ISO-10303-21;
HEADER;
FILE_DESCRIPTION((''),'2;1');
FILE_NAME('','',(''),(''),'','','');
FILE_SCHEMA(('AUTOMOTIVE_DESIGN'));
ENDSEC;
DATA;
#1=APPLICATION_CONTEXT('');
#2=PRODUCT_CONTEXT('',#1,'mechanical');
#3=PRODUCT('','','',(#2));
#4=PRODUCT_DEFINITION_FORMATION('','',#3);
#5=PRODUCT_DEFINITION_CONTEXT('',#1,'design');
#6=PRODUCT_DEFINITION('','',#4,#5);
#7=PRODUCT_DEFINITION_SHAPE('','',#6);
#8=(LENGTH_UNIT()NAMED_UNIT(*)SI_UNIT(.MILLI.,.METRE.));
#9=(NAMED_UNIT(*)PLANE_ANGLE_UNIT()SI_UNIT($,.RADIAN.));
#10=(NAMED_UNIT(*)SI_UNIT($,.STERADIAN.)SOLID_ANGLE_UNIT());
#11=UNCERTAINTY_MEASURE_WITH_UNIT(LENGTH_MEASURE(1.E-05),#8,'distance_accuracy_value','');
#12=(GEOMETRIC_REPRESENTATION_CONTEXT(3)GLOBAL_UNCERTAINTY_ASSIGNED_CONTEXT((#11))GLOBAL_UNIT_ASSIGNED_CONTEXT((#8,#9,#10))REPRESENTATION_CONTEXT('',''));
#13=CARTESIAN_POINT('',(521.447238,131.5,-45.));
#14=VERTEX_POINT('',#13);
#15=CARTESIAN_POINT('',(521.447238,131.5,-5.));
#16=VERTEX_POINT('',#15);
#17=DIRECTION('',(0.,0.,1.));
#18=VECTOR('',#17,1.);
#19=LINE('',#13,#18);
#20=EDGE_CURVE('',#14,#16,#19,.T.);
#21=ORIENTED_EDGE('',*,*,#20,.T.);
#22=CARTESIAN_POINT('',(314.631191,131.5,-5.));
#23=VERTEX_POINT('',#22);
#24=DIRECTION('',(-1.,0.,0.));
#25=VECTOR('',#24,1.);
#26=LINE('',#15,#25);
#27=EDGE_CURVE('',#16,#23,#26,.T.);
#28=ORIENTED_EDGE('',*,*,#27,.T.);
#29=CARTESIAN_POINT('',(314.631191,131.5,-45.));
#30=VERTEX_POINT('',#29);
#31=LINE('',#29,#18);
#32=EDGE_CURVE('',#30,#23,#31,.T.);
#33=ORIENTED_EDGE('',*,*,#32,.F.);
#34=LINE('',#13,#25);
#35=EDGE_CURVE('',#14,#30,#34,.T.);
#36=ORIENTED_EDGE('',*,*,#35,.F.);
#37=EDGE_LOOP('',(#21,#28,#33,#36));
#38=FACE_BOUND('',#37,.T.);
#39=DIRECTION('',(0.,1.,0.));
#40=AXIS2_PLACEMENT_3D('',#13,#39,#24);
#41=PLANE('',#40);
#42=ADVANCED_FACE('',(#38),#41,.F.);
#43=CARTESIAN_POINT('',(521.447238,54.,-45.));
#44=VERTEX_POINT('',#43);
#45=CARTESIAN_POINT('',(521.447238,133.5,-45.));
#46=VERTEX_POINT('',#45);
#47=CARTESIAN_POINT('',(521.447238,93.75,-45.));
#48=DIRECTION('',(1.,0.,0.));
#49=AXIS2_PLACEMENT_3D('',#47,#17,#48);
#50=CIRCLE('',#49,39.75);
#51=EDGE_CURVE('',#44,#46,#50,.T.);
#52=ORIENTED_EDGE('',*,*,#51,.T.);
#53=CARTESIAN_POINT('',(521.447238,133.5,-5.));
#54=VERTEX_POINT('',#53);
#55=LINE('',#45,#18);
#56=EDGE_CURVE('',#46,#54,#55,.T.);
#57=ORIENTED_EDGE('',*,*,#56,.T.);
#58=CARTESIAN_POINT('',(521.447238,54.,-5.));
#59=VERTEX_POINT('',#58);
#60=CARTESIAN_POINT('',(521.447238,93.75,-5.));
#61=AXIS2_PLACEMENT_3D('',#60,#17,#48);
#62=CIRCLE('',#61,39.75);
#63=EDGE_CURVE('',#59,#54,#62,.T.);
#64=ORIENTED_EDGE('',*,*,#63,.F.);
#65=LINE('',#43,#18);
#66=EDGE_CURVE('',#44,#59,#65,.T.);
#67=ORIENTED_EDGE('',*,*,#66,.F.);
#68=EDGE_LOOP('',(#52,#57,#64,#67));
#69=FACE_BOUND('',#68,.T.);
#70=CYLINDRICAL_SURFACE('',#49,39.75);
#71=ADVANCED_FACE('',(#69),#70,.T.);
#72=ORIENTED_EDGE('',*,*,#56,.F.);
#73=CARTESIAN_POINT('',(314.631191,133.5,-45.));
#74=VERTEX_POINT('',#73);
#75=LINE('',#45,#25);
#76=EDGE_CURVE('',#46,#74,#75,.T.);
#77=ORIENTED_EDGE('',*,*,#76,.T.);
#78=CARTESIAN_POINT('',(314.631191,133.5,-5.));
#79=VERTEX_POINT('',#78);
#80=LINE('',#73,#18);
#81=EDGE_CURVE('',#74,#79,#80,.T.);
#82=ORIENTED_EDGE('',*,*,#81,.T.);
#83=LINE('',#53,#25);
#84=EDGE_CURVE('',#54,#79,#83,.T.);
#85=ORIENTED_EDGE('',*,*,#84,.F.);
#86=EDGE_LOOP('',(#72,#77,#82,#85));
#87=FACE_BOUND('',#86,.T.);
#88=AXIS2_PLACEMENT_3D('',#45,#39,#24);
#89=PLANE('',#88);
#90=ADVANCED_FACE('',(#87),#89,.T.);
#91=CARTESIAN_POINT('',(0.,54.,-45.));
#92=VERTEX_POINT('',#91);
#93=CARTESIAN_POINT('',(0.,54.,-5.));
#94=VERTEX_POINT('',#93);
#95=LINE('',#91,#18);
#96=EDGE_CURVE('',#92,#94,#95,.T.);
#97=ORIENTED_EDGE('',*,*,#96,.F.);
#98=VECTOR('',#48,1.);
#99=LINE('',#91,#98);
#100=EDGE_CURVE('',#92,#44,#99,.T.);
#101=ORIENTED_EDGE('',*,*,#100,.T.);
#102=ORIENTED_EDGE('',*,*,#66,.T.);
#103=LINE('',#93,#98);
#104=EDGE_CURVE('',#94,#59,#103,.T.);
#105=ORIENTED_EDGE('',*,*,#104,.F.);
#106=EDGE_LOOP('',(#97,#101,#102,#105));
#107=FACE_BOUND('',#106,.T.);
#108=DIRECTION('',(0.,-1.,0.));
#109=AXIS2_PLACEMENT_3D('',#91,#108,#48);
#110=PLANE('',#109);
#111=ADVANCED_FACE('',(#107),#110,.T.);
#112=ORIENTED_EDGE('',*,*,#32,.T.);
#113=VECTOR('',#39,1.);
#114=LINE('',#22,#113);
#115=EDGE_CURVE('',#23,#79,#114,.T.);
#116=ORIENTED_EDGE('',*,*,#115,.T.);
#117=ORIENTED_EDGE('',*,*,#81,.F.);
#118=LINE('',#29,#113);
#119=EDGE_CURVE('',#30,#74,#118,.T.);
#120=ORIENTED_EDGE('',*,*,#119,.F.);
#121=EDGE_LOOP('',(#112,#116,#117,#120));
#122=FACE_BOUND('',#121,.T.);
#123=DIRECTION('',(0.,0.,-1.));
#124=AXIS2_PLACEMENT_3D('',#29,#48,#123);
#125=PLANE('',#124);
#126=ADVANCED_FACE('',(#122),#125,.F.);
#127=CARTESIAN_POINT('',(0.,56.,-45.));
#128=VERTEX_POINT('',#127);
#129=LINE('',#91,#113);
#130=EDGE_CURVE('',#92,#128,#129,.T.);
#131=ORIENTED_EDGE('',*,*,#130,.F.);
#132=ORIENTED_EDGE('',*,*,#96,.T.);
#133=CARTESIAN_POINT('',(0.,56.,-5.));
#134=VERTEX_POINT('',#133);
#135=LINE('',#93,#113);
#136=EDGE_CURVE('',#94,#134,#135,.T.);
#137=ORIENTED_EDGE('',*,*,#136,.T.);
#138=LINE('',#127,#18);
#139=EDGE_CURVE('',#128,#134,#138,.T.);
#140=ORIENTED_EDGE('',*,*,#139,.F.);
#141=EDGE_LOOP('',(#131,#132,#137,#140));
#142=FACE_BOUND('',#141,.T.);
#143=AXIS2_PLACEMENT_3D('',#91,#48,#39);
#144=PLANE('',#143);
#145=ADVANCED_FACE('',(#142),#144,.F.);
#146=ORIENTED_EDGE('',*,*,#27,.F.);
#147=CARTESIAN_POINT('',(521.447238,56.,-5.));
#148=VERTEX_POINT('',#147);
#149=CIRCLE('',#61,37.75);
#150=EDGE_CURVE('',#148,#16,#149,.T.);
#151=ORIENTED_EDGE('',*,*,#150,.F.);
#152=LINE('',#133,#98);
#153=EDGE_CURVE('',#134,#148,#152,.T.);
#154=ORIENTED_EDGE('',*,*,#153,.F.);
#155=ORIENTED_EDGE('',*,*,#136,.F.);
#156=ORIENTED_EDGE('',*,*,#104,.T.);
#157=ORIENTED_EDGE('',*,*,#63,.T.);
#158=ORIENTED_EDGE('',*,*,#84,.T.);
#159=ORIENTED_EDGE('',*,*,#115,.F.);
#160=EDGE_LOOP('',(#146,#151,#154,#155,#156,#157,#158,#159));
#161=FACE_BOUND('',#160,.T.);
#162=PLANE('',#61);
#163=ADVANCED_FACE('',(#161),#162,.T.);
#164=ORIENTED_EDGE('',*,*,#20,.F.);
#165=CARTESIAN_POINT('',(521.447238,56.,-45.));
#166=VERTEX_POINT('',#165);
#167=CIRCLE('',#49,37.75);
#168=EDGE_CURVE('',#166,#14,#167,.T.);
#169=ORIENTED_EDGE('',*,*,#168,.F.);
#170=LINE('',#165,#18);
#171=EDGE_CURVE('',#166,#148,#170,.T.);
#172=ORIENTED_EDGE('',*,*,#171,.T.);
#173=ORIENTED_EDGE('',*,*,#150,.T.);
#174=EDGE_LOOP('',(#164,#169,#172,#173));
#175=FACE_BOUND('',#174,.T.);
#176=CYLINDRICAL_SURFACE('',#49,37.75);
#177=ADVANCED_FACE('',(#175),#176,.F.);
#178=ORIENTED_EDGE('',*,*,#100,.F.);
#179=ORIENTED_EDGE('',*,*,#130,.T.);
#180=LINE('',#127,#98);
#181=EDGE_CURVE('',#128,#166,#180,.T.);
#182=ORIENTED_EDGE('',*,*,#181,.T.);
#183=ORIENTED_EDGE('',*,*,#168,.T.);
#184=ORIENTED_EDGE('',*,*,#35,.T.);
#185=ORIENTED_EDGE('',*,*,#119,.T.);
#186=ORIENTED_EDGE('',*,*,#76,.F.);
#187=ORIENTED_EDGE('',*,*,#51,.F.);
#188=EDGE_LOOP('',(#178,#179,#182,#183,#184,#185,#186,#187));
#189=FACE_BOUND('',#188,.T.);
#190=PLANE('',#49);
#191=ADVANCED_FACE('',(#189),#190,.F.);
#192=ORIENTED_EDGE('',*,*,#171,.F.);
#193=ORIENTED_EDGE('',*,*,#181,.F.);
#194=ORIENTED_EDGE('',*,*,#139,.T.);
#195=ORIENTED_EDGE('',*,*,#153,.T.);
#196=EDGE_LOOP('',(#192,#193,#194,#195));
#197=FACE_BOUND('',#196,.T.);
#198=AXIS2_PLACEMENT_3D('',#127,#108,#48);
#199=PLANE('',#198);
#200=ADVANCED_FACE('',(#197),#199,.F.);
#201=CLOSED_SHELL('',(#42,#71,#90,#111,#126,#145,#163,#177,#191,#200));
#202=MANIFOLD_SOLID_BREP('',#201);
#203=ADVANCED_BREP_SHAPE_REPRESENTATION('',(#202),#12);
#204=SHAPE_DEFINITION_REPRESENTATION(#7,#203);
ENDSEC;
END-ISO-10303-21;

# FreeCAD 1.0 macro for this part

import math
import FreeCAD as App
import Part
import Sketcher

V = App.Vector

doc = App.newDocument("Part")
body = doc.addObject("PartDesign::Body", "Body")

# Sketch on XY plane
sketch1 = doc.addObject("Sketcher::SketchObject", "Sketch")
body.addObject(sketch1)
sketch1.AttachmentSupport = (doc.XY_Plane, [""])
sketch1.MapMode = "FlatFace"
sketch1.AttachmentOffset = App.Placement(V(0, 0, -5), App.Rotation())
sketch1.addGeometry([
    Part.LineSegment(V(0, 54, 0), V(521.447238, 54, 0)),  # 0
    Part.ArcOfCircle(Part.Circle(V(521.447238, 93.75, 0), V(0, 0, 1), 39.75), math.radians(-90), math.radians(90)),  # 1
    Part.LineSegment(V(521.447238, 133.5, 0), V(314.631191, 133.5, 0)),  # 2
    Part.LineSegment(V(314.631191, 133.5, 0), V(314.631191, 131.5, 0)),  # 3
    Part.LineSegment(V(314.631191, 131.5, 0), V(521.447238, 131.5, 0)),  # 4
    Part.ArcOfCircle(Part.Circle(V(521.447238, 93.75, 0), V(0, 0, 1), 37.75), math.radians(-90), math.radians(90)),  # 5
    Part.LineSegment(V(521.447238, 56, 0), V(0, 56, 0)),  # 6
    Part.LineSegment(V(0, 56, 0), V(0, 54, 0)),  # 7
], False)
sketch1.addConstraint([
    Sketcher.Constraint("Tangent", 0, 2, 1, 1),
    Sketcher.Constraint("Tangent", 1, 2, 2, 1),
    Sketcher.Constraint("Coincident", 2, 2, 3, 1),
    Sketcher.Constraint("Coincident", 3, 2, 4, 1),
    Sketcher.Constraint("Tangent", 4, 2, 5, 2),
    Sketcher.Constraint("Tangent", 5, 1, 6, 1),
    Sketcher.Constraint("Coincident", 6, 2, 7, 1),
    Sketcher.Constraint("Coincident", 7, 2, 0, 1),
    Sketcher.Constraint("Horizontal", 0),
    Sketcher.Constraint("Horizontal", 2),
    Sketcher.Constraint("Vertical", 3),
    Sketcher.Constraint("Horizontal", 4),
    Sketcher.Constraint("Horizontal", 6),
    Sketcher.Constraint("Vertical", 7),
    Sketcher.Constraint("Coincident", 5, 3, 1, 3),
    Sketcher.Constraint("PointOnObject", 6, 2, -2),
    Sketcher.Constraint("DistanceY", 3, 2, 3, 1, 2.0),
    Sketcher.Constraint("Radius", 1, 39.75),
    Sketcher.Constraint("DistanceY", -1, 1, 0, 2, 54.0),
    Sketcher.Constraint("DistanceX", 0, 1, 0, 2, 521.447238),
    Sketcher.Constraint("DistanceX", 2, 2, 2, 1, 206.816047),
])
pad1 = doc.addObject("PartDesign::Pad", "Pad")
body.addObject(pad1)
pad1.Profile = sketch1
pad1.Length = 40
pad1.Reversed = True

doc.recompute()
